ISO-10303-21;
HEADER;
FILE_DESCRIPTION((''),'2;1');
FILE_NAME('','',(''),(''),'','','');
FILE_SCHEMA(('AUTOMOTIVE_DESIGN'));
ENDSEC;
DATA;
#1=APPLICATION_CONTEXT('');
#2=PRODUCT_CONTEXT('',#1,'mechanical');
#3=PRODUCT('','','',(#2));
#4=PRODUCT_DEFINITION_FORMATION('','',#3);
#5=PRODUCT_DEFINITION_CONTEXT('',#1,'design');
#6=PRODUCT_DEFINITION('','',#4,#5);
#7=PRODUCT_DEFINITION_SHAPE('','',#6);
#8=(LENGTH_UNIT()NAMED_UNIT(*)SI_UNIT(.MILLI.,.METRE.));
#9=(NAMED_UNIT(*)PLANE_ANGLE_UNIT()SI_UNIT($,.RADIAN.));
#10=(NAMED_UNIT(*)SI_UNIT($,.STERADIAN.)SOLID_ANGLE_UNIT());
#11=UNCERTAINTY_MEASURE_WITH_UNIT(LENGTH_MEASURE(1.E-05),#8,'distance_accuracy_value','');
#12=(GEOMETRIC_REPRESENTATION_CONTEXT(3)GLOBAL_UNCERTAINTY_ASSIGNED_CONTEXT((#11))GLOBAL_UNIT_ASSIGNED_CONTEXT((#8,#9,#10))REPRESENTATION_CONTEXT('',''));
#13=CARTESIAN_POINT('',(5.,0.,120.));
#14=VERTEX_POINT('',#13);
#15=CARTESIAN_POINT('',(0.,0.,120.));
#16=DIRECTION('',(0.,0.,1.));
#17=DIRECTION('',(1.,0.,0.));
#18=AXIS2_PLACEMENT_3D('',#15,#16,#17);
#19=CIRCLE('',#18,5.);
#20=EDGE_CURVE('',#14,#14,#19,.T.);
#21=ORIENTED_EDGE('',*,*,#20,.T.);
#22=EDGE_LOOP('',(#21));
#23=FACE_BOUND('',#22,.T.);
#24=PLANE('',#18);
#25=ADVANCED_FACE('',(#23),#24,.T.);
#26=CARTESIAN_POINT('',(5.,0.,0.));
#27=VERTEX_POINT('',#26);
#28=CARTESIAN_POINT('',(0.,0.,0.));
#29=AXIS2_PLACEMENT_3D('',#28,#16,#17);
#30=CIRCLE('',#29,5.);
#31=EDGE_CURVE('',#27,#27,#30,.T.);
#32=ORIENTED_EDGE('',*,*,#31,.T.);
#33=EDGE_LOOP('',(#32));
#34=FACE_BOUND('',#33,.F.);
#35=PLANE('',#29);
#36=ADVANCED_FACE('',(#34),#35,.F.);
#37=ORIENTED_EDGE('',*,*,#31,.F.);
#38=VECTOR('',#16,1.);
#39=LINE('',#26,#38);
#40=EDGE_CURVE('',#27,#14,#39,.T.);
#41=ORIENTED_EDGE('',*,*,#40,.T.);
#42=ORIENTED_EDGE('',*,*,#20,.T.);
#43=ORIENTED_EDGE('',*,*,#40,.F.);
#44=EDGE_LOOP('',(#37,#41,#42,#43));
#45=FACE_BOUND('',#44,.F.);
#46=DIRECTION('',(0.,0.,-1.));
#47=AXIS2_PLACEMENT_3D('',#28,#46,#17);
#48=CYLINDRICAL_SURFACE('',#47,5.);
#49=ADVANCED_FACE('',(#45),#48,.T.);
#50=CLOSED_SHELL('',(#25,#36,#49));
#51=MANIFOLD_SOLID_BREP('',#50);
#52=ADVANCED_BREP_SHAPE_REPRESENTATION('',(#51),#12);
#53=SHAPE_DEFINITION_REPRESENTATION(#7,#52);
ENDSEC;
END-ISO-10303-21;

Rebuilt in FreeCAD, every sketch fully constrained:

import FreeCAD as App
import Part
import Sketcher
from FreeCAD import Vector
Q = App.Units.Quantity

doc = App.newDocument("Part")
params = doc.addObject("Spreadsheet::Sheet", "Params")
for row, (alias, value) in enumerate([
    ("sketch1_diameter", "10 mm"),
    ("pad1_length", "120 mm"),
], start=1):
    params.set(f"A{row}", alias)
    params.set(f"B{row}", "=" + value)
    params.setAlias(f"B{row}", alias)

body = doc.addObject("PartDesign::Body", "Body")

# Sketch on XY plane
sketch1 = body.newObject("Sketcher::SketchObject", "Sketch")
sketch1.AttachmentSupport = (doc.getObject("XY_Plane"), [""])
sketch1.MapMode = "FlatFace"
sketch1.addGeometry(Part.Circle(Vector(0, 0, 0), Vector(0, 0, 1), 5), False)
sketch1.addConstraint(Sketcher.Constraint("Coincident", 0, 3, -1, 1))
sketch1.addConstraint(Sketcher.Constraint("Diameter", 0, Q("10 mm")))
sketch1.setExpression("Constraints[1]", "Params.sketch1_diameter")
pad1 = body.newObject("PartDesign::Pad", "Pad")
pad1.Profile = sketch1
pad1.setExpression("Length", "Params.pad1_length")

doc.recompute()
